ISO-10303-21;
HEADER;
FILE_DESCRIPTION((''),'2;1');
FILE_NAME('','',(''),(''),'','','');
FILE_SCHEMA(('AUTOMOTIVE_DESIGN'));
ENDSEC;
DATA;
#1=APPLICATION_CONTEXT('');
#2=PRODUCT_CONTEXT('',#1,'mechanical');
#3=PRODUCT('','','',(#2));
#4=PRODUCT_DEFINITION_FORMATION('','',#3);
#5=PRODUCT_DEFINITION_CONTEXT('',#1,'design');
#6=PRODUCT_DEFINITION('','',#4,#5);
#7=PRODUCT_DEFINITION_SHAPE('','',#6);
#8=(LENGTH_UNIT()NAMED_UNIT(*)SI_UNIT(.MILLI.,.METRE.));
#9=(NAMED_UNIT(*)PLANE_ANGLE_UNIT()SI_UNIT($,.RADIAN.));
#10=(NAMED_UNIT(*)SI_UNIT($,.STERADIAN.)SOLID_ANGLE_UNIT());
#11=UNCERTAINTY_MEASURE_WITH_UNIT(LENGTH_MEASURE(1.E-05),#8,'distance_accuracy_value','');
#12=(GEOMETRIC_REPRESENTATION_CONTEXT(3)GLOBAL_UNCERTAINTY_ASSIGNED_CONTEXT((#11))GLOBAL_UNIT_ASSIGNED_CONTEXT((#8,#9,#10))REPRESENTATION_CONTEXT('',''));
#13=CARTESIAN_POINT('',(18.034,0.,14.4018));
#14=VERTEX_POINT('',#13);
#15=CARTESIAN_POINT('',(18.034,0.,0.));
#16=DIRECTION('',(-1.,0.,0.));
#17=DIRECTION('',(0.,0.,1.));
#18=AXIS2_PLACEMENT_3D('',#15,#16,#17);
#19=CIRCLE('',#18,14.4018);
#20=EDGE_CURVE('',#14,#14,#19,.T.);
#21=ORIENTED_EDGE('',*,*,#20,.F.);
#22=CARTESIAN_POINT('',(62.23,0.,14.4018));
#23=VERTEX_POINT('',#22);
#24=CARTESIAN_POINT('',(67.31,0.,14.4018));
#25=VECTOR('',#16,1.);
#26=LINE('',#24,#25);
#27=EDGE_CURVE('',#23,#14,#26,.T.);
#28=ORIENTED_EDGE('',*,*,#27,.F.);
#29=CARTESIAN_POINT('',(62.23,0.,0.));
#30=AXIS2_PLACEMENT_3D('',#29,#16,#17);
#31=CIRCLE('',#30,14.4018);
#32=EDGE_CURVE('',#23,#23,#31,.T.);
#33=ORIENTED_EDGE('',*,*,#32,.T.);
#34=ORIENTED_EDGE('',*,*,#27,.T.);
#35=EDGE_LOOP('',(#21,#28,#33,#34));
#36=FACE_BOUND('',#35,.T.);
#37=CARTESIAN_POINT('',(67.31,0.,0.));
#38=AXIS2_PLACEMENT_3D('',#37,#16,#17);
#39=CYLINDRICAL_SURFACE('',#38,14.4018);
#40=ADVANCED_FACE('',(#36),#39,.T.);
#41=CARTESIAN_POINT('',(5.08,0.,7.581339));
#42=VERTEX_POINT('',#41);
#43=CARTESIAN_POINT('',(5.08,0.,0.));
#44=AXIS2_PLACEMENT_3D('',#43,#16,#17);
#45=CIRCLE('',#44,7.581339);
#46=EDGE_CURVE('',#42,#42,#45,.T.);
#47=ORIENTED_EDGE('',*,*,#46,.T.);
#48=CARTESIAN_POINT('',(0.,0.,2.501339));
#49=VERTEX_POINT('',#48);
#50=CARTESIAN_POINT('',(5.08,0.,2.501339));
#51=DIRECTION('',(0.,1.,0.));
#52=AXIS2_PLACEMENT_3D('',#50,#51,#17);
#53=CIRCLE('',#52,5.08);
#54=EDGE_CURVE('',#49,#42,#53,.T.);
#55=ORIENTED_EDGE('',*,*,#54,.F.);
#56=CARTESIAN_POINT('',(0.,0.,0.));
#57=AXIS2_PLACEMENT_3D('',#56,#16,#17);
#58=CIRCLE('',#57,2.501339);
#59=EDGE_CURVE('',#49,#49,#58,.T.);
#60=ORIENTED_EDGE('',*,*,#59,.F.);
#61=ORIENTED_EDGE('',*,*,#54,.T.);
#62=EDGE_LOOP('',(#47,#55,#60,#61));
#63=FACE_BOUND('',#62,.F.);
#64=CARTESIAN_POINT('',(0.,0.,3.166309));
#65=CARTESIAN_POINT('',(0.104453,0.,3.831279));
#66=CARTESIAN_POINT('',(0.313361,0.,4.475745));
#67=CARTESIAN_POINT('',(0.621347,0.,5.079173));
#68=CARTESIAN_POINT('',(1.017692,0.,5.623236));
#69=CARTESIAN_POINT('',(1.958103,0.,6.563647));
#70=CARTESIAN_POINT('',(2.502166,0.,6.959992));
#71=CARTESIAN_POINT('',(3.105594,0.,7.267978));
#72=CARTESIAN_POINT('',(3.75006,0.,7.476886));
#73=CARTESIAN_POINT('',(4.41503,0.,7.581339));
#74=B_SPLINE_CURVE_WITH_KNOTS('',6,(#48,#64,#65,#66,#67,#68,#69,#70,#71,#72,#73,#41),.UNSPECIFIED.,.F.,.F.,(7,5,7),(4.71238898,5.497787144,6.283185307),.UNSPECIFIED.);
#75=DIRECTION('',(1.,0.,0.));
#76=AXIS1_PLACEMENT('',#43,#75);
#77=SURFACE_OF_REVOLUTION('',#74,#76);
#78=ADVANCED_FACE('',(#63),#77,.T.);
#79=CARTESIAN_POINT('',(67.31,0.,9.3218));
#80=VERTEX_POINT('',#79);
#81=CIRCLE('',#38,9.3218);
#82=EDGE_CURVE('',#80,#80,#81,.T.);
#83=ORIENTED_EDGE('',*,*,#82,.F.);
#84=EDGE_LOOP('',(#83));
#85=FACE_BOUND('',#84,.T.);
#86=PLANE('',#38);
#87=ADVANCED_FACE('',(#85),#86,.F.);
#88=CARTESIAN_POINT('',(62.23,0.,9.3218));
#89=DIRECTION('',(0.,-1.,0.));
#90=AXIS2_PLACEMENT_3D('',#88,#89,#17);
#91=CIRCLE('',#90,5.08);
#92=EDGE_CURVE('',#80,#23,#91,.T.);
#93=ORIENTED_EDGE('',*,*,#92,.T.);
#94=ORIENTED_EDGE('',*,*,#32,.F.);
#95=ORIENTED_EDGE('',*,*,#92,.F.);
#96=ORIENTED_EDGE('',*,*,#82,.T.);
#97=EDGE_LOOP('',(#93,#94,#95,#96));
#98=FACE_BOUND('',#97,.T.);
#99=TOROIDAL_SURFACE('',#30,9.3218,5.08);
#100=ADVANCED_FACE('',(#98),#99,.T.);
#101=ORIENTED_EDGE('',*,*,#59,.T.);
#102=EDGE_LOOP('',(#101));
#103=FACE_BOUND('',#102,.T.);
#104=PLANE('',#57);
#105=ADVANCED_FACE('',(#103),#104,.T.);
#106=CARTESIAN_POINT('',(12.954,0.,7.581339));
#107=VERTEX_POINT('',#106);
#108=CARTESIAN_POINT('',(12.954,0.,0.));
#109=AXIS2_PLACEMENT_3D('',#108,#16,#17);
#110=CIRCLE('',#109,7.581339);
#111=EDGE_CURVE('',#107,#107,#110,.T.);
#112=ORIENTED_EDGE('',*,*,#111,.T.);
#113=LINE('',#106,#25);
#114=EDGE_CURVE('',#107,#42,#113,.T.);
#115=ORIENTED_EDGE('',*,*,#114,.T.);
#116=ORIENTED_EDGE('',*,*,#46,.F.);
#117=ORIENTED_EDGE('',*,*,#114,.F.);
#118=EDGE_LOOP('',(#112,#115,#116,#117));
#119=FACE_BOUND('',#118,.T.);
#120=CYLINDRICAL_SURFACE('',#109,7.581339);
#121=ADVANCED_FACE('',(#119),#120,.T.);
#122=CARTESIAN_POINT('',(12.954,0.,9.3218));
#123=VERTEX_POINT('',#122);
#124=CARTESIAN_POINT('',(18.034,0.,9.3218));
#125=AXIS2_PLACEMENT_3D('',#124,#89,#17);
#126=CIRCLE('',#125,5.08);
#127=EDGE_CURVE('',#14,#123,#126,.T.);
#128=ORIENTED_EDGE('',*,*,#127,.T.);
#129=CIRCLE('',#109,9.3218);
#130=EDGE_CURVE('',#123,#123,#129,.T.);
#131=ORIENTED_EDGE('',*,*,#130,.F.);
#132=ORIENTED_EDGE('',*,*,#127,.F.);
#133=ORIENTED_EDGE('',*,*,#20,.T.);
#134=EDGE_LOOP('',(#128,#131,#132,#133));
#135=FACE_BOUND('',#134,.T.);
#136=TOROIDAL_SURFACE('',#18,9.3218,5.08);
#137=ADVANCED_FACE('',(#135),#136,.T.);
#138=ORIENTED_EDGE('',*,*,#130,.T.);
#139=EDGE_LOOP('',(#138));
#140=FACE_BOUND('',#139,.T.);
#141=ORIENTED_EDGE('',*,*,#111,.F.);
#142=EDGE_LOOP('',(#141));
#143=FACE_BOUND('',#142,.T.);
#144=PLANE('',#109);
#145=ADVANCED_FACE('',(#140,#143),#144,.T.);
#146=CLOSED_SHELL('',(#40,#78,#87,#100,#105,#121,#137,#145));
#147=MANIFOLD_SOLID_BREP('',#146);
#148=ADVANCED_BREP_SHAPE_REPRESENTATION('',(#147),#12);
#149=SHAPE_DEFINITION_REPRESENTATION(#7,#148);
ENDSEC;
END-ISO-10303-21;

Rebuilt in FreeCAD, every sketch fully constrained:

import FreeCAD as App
import Part
import Sketcher

V = App.Vector
Q = App.Units.Quantity


def edges_at(feature, points):
    """Names of the edges that pass closest to the given points."""
    edges = feature.Shape.Edges
    near = lambda p: min(range(len(edges)), key=lambda i: edges[i].distToShape(Part.Vertex(*p))[0])
    return sorted({f"Edge{near(p) + 1}" for p in points})

doc = App.newDocument("Part")
body = doc.addObject("PartDesign::Body", "Body")

sketch1 = doc.addObject("Sketcher::SketchObject", "Sketch")
body.addObject(sketch1)
sketch1.AttachmentSupport = (doc.XZ_Plane, [""])
sketch1.MapMode = "FlatFace"
sketch1.addGeometry(Part.LineSegment(V(0, 7.581339, 0), V(0, 0, 0)), False)
sketch1.addGeometry(Part.LineSegment(V(0, 0, 0), V(67.31, 0, 0)), False)
sketch1.addGeometry(Part.LineSegment(V(67.31, 0, 0), V(67.31, 14.4018, 0)), False)
sketch1.addGeometry(Part.LineSegment(V(67.31, 14.4018, 0), V(12.954, 14.4018, 0)), False)
sketch1.addGeometry(Part.LineSegment(V(12.954, 14.4018, 0), V(12.954, 7.581339, 0)), False)
sketch1.addGeometry(Part.LineSegment(V(12.954, 7.581339, 0), V(0, 7.581339, 0)), False)
sketch1.addConstraint(Sketcher.Constraint("Coincident", 0, 2, 1, 1))
sketch1.addConstraint(Sketcher.Constraint("Coincident", 1, 2, 2, 1))
sketch1.addConstraint(Sketcher.Constraint("Coincident", 2, 2, 3, 1))
sketch1.addConstraint(Sketcher.Constraint("Coincident", 3, 2, 4, 1))
sketch1.addConstraint(Sketcher.Constraint("Coincident", 4, 2, 5, 1))
sketch1.addConstraint(Sketcher.Constraint("Coincident", 5, 2, 0, 1))
sketch1.addConstraint(Sketcher.Constraint("Vertical", 0))
sketch1.addConstraint(Sketcher.Constraint("Horizontal", 1))
sketch1.addConstraint(Sketcher.Constraint("Vertical", 2))
sketch1.addConstraint(Sketcher.Constraint("Horizontal", 3))
sketch1.addConstraint(Sketcher.Constraint("Vertical", 4))
sketch1.addConstraint(Sketcher.Constraint("Horizontal", 5))
sketch1.addConstraint(Sketcher.Constraint("Coincident", 0, 2, -1, 1))
sketch1.addConstraint(Sketcher.Constraint("DistanceX", 1, 1, 1, 2, Q("2.65 in")))
sketch1.addConstraint(Sketcher.Constraint("DistanceX", 3, 2, 3, 1, Q("2.14 in")))
sketch1.addConstraint(Sketcher.Constraint("DistanceY", 2, 1, 2, 2, Q("0.567 in")))
sketch1.addConstraint(Sketcher.Constraint("DistanceY", 0, 2, 0, 1, 7.581339))
revolution = doc.addObject("PartDesign::Revolution", "Revolution")
body.addObject(revolution)
revolution.Profile = sketch1
revolution.ReferenceAxis = (sketch1, ["H_Axis"])
revolution.Angle = 360
doc.recompute()

fillet = doc.addObject("PartDesign::Fillet", "Fillet")
body.addObject(fillet)
fillet.Base = (revolution, edges_at(revolution, [
    (67.31, 0, -14.402),
    (12.954, 0, -14.402),
    (40.132, 0, 14.402),
    (0, 0, -7.581),
]))
fillet.Radius = Q("0.2 in")

doc.recompute()
